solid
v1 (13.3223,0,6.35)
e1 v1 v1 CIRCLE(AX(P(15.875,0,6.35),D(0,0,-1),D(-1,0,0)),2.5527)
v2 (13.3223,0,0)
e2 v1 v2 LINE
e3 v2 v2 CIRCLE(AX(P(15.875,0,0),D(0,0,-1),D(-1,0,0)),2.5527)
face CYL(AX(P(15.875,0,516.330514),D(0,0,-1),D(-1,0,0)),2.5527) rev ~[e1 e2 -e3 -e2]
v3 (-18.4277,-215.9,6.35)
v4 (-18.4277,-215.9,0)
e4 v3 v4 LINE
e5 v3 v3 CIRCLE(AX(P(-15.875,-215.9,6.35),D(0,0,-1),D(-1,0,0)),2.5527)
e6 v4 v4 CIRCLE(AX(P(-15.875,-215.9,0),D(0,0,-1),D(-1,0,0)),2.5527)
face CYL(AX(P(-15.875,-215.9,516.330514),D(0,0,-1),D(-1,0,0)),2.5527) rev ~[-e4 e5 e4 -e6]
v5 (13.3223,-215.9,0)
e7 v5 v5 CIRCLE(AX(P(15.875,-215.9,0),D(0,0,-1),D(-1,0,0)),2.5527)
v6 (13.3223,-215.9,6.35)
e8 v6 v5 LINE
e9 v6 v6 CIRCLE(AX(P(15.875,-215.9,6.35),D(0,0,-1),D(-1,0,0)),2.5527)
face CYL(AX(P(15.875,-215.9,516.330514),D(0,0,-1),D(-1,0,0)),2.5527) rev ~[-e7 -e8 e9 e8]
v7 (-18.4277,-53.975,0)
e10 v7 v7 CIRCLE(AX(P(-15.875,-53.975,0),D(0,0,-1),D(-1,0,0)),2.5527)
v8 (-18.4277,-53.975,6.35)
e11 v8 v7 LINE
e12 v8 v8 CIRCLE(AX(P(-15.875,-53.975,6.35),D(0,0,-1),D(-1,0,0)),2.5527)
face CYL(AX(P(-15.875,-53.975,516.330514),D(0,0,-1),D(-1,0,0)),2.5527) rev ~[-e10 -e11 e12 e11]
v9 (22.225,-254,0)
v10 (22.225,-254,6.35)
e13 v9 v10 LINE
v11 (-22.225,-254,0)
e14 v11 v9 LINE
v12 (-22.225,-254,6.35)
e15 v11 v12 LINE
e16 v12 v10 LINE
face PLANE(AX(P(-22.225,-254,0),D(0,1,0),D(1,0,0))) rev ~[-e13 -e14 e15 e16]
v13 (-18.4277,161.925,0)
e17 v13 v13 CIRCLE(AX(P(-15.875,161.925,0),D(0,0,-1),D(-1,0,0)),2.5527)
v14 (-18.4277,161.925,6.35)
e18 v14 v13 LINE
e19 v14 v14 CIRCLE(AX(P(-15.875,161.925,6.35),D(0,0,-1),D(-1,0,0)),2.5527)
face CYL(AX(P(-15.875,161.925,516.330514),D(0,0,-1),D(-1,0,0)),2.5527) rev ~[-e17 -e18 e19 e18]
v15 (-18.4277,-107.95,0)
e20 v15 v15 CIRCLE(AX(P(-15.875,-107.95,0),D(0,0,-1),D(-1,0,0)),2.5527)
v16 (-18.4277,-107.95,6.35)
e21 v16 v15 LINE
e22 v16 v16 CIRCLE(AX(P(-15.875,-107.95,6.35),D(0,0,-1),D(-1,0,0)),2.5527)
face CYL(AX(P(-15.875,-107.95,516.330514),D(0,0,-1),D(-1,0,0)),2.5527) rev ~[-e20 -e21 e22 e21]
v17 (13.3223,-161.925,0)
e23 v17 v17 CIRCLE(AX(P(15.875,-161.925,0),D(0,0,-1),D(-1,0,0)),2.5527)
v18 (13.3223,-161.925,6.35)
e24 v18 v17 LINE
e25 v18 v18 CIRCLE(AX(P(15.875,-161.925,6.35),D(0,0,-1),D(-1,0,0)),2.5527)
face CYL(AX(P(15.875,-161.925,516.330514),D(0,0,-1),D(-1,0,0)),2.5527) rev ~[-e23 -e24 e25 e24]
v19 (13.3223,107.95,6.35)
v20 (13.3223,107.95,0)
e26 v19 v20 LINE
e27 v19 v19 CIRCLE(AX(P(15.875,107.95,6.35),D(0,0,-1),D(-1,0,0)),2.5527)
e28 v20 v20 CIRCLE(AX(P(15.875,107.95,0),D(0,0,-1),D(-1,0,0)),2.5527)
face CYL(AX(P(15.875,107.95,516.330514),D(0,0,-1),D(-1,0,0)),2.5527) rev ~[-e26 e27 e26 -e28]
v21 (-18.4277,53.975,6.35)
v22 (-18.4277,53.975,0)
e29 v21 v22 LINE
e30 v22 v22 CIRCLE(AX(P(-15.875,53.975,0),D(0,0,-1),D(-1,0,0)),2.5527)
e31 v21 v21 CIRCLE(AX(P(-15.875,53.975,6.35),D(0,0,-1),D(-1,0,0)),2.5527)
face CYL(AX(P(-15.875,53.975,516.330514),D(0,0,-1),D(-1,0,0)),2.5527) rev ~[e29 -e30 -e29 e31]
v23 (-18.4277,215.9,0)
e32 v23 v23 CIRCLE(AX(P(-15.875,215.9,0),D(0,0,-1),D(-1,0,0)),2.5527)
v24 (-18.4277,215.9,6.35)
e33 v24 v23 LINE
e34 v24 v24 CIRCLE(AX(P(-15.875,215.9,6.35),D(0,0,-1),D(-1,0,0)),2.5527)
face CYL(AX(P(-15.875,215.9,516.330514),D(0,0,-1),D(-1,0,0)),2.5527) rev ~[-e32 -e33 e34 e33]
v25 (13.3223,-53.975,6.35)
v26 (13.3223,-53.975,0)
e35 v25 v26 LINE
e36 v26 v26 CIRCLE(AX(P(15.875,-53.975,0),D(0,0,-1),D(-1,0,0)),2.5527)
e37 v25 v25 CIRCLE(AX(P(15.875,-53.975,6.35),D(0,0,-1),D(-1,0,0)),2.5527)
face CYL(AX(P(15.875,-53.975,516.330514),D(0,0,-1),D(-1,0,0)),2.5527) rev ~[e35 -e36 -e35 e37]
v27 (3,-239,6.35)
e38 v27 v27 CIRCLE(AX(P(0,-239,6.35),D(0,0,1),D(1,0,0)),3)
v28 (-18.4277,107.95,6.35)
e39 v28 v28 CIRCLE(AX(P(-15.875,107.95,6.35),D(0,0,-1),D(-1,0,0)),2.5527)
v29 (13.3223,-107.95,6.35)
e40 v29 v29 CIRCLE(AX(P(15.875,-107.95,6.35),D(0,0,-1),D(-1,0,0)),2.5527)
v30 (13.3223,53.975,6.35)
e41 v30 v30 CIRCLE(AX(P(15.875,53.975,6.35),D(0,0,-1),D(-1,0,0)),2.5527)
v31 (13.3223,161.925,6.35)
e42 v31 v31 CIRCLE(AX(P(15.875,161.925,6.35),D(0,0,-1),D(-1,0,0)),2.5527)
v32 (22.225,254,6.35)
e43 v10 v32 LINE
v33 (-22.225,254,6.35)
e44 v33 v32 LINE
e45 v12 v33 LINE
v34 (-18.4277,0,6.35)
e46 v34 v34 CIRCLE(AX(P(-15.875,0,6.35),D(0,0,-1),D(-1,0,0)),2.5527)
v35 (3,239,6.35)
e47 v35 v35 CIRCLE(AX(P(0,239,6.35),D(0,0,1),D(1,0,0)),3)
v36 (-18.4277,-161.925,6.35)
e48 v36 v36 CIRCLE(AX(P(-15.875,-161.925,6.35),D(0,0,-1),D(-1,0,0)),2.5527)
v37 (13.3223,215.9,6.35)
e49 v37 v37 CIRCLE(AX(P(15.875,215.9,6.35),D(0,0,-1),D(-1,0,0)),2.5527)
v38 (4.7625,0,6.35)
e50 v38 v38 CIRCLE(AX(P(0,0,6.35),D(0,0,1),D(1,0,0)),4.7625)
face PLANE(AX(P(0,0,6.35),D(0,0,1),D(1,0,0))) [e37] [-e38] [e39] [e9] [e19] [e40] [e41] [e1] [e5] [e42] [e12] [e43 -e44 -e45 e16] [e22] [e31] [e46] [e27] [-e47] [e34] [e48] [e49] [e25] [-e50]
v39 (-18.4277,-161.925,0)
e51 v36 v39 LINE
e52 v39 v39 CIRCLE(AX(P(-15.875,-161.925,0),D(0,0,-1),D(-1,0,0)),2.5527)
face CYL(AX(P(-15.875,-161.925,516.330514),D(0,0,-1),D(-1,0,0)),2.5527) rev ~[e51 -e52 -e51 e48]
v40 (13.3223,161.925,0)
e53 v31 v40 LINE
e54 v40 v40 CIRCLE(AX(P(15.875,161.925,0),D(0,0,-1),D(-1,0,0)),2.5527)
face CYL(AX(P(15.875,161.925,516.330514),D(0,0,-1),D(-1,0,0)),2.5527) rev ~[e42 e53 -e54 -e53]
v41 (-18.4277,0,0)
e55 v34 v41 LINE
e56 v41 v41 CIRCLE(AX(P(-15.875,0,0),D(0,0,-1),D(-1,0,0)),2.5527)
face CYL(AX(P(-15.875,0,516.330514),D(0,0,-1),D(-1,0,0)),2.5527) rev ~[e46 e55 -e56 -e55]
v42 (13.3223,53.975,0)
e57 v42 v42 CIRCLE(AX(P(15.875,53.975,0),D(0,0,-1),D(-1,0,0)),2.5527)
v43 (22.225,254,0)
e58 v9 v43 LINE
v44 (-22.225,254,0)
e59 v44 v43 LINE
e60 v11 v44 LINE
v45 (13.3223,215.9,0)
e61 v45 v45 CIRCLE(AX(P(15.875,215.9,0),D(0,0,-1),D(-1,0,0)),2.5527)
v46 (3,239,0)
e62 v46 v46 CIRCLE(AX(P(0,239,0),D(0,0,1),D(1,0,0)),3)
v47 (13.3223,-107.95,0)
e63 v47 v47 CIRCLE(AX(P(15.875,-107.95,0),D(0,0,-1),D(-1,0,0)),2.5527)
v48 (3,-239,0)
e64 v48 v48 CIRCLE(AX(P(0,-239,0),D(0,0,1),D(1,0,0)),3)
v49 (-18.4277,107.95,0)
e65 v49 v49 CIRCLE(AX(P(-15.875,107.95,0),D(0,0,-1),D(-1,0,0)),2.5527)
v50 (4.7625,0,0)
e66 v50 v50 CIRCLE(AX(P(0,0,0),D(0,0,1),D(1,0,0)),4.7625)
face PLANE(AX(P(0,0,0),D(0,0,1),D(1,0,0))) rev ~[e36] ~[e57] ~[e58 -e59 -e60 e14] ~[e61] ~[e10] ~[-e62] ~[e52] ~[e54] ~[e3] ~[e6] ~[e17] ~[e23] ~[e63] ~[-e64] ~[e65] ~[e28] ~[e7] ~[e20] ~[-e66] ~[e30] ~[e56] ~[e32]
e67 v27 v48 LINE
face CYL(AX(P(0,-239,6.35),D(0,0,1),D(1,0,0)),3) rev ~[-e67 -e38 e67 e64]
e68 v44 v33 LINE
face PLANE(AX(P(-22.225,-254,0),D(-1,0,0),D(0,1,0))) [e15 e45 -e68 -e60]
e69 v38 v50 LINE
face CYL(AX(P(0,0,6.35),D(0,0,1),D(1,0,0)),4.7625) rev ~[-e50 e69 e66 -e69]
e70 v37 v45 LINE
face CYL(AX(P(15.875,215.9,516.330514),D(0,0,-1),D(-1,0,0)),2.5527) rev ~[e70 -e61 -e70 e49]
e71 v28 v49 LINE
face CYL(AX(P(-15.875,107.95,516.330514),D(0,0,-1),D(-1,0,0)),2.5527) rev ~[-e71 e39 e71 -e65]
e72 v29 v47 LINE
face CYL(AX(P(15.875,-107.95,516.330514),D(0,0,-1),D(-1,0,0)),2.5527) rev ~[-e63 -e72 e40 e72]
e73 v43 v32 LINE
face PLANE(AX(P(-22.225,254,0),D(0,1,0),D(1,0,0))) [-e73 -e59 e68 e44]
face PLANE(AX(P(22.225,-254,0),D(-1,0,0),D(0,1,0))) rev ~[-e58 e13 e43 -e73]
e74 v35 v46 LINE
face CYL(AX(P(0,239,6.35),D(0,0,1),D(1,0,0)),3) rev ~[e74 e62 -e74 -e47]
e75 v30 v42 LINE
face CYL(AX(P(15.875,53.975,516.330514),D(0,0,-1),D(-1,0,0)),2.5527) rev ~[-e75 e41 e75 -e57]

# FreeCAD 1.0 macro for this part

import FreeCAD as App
import Part
import Sketcher
Q = App.Units.Quantity


def add_polygon(sketch, points):
    """Adds a closed chain of lines whose ends are joined by coincident constraints."""
    first, n = sketch.GeometryCount, len(points)
    for a, b in zip(points, points[1:] + points[:1]):
        sketch.addGeometry(Part.LineSegment(App.Vector(*a, 0), App.Vector(*b, 0)), False)
    for i in range(n):
        sketch.addConstraint(Sketcher.Constraint("Coincident", first + i, 2, first + (i + 1) % n, 1))

doc = App.newDocument("Part")
body = doc.addObject("PartDesign::Body", "Body")

# Sketch on XY plane
sketch1 = body.newObject("Sketcher::SketchObject", "Sketch")
sketch1.AttachmentSupport = (doc.getObject("XY_Plane"), [""])
sketch1.MapMode = "FlatFace"
add_polygon(sketch1, [(-22.225, 254), (-22.225, -254), (22.225, -254), (22.225, 254)])  # lines 0-3
sketch1.addConstraint([
    Sketcher.Constraint("Vertical", 0),
    Sketcher.Constraint("Horizontal", 1),
    Sketcher.Constraint("Vertical", 2),
    Sketcher.Constraint("Horizontal", 3),
    Sketcher.Constraint("Symmetric", 0, 2, 2, 2, -1, 1),
    Sketcher.Constraint("DistanceY", 0, 2, 0, 1, Q("20 in")),
    Sketcher.Constraint("DistanceX", 1, 1, 1, 2, Q("1.75 in")),
])
pad1 = body.newObject("PartDesign::Pad", "Pad")
pad1.Profile = sketch1
pad1.Length = Q("0.25 in")

# Sketch on XY plane
sketch2 = body.newObject("Sketcher::SketchObject", "Sketch001")
sketch2.AttachmentSupport = (doc.getObject("XY_Plane"), [""])
sketch2.MapMode = "FlatFace"
sketch2.AttachmentOffset = App.Placement(App.Vector(0, 0, 0.25 * 25.4), App.Rotation())
sketch2.addGeometry([
    Part.Circle(App.Vector(-15.875, -215.9, 0), App.Vector(0, 0, 1), 2.5527),  # 0
    Part.Circle(App.Vector(15.875, -215.9, 0), App.Vector(0, 0, 1), 2.5527),  # 1
    Part.Circle(App.Vector(15.875, -161.925, 0), App.Vector(0, 0, 1), 2.5527),  # 2
    Part.Circle(App.Vector(-15.875, -161.925, 0), App.Vector(0, 0, 1), 2.5527),  # 3
    Part.Circle(App.Vector(-15.875, -107.95, 0), App.Vector(0, 0, 1), 2.5527),  # 4
    Part.Circle(App.Vector(15.875, -107.95, 0), App.Vector(0, 0, 1), 2.5527),  # 5
    Part.Circle(App.Vector(15.875, -53.975, 0), App.Vector(0, 0, 1), 2.5527),  # 6
    Part.Circle(App.Vector(-15.875, -53.975, 0), App.Vector(0, 0, 1), 2.5527),  # 7
    Part.Circle(App.Vector(-15.875, 0, 0), App.Vector(0, 0, 1), 2.5527),  # 8
    Part.Circle(App.Vector(15.875, 0, 0), App.Vector(0, 0, 1), 2.5527),  # 9
    Part.Circle(App.Vector(15.875, 53.975, 0), App.Vector(0, 0, 1), 2.5527),  # 10
    Part.Circle(App.Vector(-15.875, 53.975, 0), App.Vector(0, 0, 1), 2.5527),  # 11
    Part.Circle(App.Vector(-15.875, 107.95, 0), App.Vector(0, 0, 1), 2.5527),  # 12
    Part.Circle(App.Vector(15.875, 107.95, 0), App.Vector(0, 0, 1), 2.5527),  # 13
    Part.Circle(App.Vector(-15.875, 161.925, 0), App.Vector(0, 0, 1), 2.5527),  # 14
    Part.Circle(App.Vector(15.875, 161.925, 0), App.Vector(0, 0, 1), 2.5527),  # 15
    Part.Circle(App.Vector(15.875, 215.9, 0), App.Vector(0, 0, 1), 2.5527),  # 16
    Part.Circle(App.Vector(-15.875, 215.9, 0), App.Vector(0, 0, 1), 2.5527),  # 17
], False)
sketch2.addConstraint([
    Sketcher.Constraint("Equal", 0, 1),
    Sketcher.Constraint("Equal", 1, 2),
    Sketcher.Constraint("Equal", 2, 3),
    Sketcher.Constraint("Equal", 3, 4),
    Sketcher.Constraint("Equal", 4, 5),
    Sketcher.Constraint("Equal", 5, 6),
    Sketcher.Constraint("Equal", 6, 7),
    Sketcher.Constraint("Equal", 7, 8),
    Sketcher.Constraint("Equal", 8, 9),
    Sketcher.Constraint("Equal", 9, 10),
    Sketcher.Constraint("Equal", 10, 11),
    Sketcher.Constraint("Equal", 11, 12),
    Sketcher.Constraint("Equal", 12, 13),
    Sketcher.Constraint("Equal", 13, 14),
    Sketcher.Constraint("Equal", 14, 15),
    Sketcher.Constraint("Equal", 15, 16),
    Sketcher.Constraint("Equal", 16, 17),
    Sketcher.Constraint("Symmetric", 8, 3, 9, 3, -1, 1),
    Sketcher.Constraint("Symmetric", 7, 3, 10, 3, -1, 1),
    Sketcher.Constraint("Symmetric", 6, 3, 11, 3, -1, 1),
    Sketcher.Constraint("Symmetric", 5, 3, 12, 3, -1, 1),
    Sketcher.Constraint("Symmetric", 4, 3, 13, 3, -1, 1),
    Sketcher.Constraint("Symmetric", 2, 3, 14, 3, -1, 1),
    Sketcher.Constraint("Symmetric", 3, 3, 15, 3, -1, 1),
    Sketcher.Constraint("Symmetric", 0, 3, 16, 3, -1, 1),
    Sketcher.Constraint("Symmetric", 1, 3, 17, 3, -1, 1),
    Sketcher.Constraint("Symmetric", 0, 3, 1, 3, -2),
    Sketcher.Constraint("Symmetric", 2, 3, 3, 3, -2),
    Sketcher.Constraint("Symmetric", 4, 3, 5, 3, -2),
    Sketcher.Constraint("Symmetric", 6, 3, 7, 3, -2),
    Sketcher.Constraint("PointOnObject", 8, 3, -1),
    Sketcher.Constraint("Vertical", 1, 3, 2, 3),
    Sketcher.Constraint("Vertical", 3, 3, 4, 3),
    Sketcher.Constraint("Vertical", 5, 3, 6, 3),
    Sketcher.Constraint("Vertical", 7, 3, 8, 3),
    Sketcher.Constraint("Diameter", 0, Q("0.201 in")),
    Sketcher.Constraint("DistanceY", 0, 3, -1, 1, Q("8.5 in")),
    Sketcher.Constraint("DistanceY", 4, 3, -1, 1, Q("4.25 in")),
    Sketcher.Constraint("DistanceX", 0, 3, 1, 3, Q("1.25 in")),
    Sketcher.Constraint("DistanceY", 2, 3, 6, 3, Q("4.25 in")),
    Sketcher.Constraint("DistanceY", 6, 3, 10, 3, Q("4.25 in")),
])
doc.recompute()
hole = body.newObject("PartDesign::Hole", "Hole")
hole.Profile = sketch2
hole.ThreadType = "None"
hole.Diameter = Q("0.201 in")
hole.DepthType = "ThroughAll"

# Sketch on XY plane
sketch3 = body.newObject("Sketcher::SketchObject", "Sketch002")
sketch3.AttachmentSupport = (doc.getObject("XY_Plane"), [""])
sketch3.MapMode = "FlatFace"
sketch3.AttachmentOffset = App.Placement(App.Vector(0, 0, 0.25 * 25.4), App.Rotation())
sketch3.addGeometry([
    Part.Circle(App.Vector(0, -239, 0), App.Vector(0, 0, 1), 3),
    Part.Circle(App.Vector(0, 239, 0), App.Vector(0, 0, 1), 3),
], False)
sketch3.addConstraint([
    Sketcher.Constraint("Equal", 0, 1),
    Sketcher.Constraint("Symmetric", 0, 3, 1, 3, -1, 1),
    Sketcher.Constraint("PointOnObject", 0, 3, -2),
    Sketcher.Constraint("Diameter", 0, 6.0),
    Sketcher.Constraint("DistanceY", 0, 3, -1, 1, 239.0),
])
pocket1 = body.newObject("PartDesign::Pocket", "Pocket")
pocket1.Profile = sketch3
pocket1.Type = "ThroughAll"

# Sketch on XY plane
sketch4 = body.newObject("Sketcher::SketchObject", "Sketch003")
sketch4.AttachmentSupport = (doc.getObject("XY_Plane"), [""])
sketch4.MapMode = "FlatFace"
sketch4.AttachmentOffset = App.Placement(App.Vector(0, 0, 0.25 * 25.4), App.Rotation())
sketch4.addGeometry(Part.Circle(App.Vector(0, 0, 0), App.Vector(0, 0, 1), 4.7625), False)
sketch4.addConstraint([
    Sketcher.Constraint("Coincident", 0, 3, -1, 1),
    Sketcher.Constraint("Diameter", 0, Q("0.375 in")),
])
pocket2 = body.newObject("PartDesign::Pocket", "Pocket001")
pocket2.Profile = sketch4
pocket2.Type = "ThroughAll"

doc.recompute()
